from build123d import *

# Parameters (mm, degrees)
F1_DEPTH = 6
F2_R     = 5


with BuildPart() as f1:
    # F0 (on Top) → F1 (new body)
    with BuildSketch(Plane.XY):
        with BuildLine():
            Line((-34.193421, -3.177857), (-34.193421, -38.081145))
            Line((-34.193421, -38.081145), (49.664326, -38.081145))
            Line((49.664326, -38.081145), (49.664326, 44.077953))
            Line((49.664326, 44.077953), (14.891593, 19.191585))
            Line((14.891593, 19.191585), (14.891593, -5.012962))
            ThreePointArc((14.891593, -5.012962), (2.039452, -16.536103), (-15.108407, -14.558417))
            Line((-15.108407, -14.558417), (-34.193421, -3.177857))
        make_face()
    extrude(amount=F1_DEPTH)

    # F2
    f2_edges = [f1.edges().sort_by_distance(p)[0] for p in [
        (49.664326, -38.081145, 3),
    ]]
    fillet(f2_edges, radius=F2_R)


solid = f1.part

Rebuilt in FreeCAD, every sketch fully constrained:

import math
import FreeCAD as App
import Part
import Sketcher
from FreeCAD import Vector
Q = App.Units.Quantity


def edges_at(feature, points):
    """Names of the edges that pass closest to the given points."""
    edges = feature.Shape.Edges
    near = lambda p: min(range(len(edges)), key=lambda i: edges[i].distToShape(Part.Vertex(*p))[0])
    return sorted({f"Edge{near(p) + 1}" for p in points})

doc = App.newDocument("Part")
body = doc.addObject("PartDesign::Body", "Body")

sketch1 = doc.addObject("Sketcher::SketchObject", "Sketch")
body.addObject(sketch1)
sketch1.AttachmentSupport = (doc.XY_Plane, [""])
sketch1.MapMode = "FlatFace"
sketch1.addGeometry([
    Part.LineSegment(Vector(-34.193421, -3.177857, 0), Vector(-34.193421, -38.081145, 0)),
    Part.LineSegment(Vector(-34.193421, -38.081145, 0), Vector(49.664326, -38.081145, 0)),
    Part.LineSegment(Vector(49.664326, -38.081145, 0), Vector(49.664326, 44.077953, 0)),
    Part.LineSegment(Vector(49.664326, 44.077953, 0), Vector(14.891593, 19.191585, 0)),
    Part.LineSegment(Vector(14.891593, 19.191585, 0), Vector(14.891593, -5.012962, 0)),
    Part.ArcOfCircle(Part.Circle(Vector(-4.337183, 3.504749, 0), Vector(0, 0, 1), 21.030864), math.radians(-120.807993), math.radians(-23.891757)),
    Part.LineSegment(Vector(-15.108407, -14.558417, 0), Vector(-34.193421, -3.177857, 0)),
], False)
sketch1.addConstraint([
    Sketcher.Constraint("Coincident", 0, 2, 1, 1),
    Sketcher.Constraint("Coincident", 1, 2, 2, 1),
    Sketcher.Constraint("Coincident", 2, 2, 3, 1),
    Sketcher.Constraint("Coincident", 3, 2, 4, 1),
    Sketcher.Constraint("Coincident", 4, 2, 5, 2),
    Sketcher.Constraint("Tangent", 5, 1, 6, 1),
    Sketcher.Constraint("Coincident", 6, 2, 0, 1),
    Sketcher.Constraint("Vertical", 0),
    Sketcher.Constraint("Horizontal", 1),
    Sketcher.Constraint("Vertical", 2),
    Sketcher.Constraint("Vertical", 4),
    Sketcher.Constraint("DistanceX", 5, 1, 4, 2, Q("30 mm")),
    Sketcher.Constraint("DistanceY", 2, 1, 2, 2, Q("82.159098 mm")),
    Sketcher.Constraint("Radius", 5, Q("21.030864 mm")),
    Sketcher.Constraint("DistanceX", 1, 1, 1, 2, Q("83.857747 mm")),
    Sketcher.Constraint("DistanceY", 0, 2, 0, 1, Q("34.903288 mm")),
    Sketcher.Constraint("DistanceY", 4, 2, 4, 1, Q("24.204547 mm")),
    Sketcher.Constraint("DistanceY", -1, 1, 5, 3, Q("3.504749 mm")),
    Sketcher.Constraint("DistanceX", 0, 2, -1, 1, Q("34.193421 mm")),
    Sketcher.Constraint("DistanceX", 5, 3, 1, 2, Q("54.001509 mm")),
    Sketcher.Constraint("DistanceY", 3, 2, 2, 2, Q("24.886368 mm")),
])
pad1 = doc.addObject("PartDesign::Pad", "Pad")
body.addObject(pad1)
pad1.Profile = sketch1
pad1.Length = 6
doc.recompute()

fillet = doc.addObject("PartDesign::Fillet", "Fillet")
body.addObject(fillet)
fillet.Base = (pad1, edges_at(pad1, [(49.664, -38.081, 3)]))
fillet.Radius = 5

doc.recompute()
